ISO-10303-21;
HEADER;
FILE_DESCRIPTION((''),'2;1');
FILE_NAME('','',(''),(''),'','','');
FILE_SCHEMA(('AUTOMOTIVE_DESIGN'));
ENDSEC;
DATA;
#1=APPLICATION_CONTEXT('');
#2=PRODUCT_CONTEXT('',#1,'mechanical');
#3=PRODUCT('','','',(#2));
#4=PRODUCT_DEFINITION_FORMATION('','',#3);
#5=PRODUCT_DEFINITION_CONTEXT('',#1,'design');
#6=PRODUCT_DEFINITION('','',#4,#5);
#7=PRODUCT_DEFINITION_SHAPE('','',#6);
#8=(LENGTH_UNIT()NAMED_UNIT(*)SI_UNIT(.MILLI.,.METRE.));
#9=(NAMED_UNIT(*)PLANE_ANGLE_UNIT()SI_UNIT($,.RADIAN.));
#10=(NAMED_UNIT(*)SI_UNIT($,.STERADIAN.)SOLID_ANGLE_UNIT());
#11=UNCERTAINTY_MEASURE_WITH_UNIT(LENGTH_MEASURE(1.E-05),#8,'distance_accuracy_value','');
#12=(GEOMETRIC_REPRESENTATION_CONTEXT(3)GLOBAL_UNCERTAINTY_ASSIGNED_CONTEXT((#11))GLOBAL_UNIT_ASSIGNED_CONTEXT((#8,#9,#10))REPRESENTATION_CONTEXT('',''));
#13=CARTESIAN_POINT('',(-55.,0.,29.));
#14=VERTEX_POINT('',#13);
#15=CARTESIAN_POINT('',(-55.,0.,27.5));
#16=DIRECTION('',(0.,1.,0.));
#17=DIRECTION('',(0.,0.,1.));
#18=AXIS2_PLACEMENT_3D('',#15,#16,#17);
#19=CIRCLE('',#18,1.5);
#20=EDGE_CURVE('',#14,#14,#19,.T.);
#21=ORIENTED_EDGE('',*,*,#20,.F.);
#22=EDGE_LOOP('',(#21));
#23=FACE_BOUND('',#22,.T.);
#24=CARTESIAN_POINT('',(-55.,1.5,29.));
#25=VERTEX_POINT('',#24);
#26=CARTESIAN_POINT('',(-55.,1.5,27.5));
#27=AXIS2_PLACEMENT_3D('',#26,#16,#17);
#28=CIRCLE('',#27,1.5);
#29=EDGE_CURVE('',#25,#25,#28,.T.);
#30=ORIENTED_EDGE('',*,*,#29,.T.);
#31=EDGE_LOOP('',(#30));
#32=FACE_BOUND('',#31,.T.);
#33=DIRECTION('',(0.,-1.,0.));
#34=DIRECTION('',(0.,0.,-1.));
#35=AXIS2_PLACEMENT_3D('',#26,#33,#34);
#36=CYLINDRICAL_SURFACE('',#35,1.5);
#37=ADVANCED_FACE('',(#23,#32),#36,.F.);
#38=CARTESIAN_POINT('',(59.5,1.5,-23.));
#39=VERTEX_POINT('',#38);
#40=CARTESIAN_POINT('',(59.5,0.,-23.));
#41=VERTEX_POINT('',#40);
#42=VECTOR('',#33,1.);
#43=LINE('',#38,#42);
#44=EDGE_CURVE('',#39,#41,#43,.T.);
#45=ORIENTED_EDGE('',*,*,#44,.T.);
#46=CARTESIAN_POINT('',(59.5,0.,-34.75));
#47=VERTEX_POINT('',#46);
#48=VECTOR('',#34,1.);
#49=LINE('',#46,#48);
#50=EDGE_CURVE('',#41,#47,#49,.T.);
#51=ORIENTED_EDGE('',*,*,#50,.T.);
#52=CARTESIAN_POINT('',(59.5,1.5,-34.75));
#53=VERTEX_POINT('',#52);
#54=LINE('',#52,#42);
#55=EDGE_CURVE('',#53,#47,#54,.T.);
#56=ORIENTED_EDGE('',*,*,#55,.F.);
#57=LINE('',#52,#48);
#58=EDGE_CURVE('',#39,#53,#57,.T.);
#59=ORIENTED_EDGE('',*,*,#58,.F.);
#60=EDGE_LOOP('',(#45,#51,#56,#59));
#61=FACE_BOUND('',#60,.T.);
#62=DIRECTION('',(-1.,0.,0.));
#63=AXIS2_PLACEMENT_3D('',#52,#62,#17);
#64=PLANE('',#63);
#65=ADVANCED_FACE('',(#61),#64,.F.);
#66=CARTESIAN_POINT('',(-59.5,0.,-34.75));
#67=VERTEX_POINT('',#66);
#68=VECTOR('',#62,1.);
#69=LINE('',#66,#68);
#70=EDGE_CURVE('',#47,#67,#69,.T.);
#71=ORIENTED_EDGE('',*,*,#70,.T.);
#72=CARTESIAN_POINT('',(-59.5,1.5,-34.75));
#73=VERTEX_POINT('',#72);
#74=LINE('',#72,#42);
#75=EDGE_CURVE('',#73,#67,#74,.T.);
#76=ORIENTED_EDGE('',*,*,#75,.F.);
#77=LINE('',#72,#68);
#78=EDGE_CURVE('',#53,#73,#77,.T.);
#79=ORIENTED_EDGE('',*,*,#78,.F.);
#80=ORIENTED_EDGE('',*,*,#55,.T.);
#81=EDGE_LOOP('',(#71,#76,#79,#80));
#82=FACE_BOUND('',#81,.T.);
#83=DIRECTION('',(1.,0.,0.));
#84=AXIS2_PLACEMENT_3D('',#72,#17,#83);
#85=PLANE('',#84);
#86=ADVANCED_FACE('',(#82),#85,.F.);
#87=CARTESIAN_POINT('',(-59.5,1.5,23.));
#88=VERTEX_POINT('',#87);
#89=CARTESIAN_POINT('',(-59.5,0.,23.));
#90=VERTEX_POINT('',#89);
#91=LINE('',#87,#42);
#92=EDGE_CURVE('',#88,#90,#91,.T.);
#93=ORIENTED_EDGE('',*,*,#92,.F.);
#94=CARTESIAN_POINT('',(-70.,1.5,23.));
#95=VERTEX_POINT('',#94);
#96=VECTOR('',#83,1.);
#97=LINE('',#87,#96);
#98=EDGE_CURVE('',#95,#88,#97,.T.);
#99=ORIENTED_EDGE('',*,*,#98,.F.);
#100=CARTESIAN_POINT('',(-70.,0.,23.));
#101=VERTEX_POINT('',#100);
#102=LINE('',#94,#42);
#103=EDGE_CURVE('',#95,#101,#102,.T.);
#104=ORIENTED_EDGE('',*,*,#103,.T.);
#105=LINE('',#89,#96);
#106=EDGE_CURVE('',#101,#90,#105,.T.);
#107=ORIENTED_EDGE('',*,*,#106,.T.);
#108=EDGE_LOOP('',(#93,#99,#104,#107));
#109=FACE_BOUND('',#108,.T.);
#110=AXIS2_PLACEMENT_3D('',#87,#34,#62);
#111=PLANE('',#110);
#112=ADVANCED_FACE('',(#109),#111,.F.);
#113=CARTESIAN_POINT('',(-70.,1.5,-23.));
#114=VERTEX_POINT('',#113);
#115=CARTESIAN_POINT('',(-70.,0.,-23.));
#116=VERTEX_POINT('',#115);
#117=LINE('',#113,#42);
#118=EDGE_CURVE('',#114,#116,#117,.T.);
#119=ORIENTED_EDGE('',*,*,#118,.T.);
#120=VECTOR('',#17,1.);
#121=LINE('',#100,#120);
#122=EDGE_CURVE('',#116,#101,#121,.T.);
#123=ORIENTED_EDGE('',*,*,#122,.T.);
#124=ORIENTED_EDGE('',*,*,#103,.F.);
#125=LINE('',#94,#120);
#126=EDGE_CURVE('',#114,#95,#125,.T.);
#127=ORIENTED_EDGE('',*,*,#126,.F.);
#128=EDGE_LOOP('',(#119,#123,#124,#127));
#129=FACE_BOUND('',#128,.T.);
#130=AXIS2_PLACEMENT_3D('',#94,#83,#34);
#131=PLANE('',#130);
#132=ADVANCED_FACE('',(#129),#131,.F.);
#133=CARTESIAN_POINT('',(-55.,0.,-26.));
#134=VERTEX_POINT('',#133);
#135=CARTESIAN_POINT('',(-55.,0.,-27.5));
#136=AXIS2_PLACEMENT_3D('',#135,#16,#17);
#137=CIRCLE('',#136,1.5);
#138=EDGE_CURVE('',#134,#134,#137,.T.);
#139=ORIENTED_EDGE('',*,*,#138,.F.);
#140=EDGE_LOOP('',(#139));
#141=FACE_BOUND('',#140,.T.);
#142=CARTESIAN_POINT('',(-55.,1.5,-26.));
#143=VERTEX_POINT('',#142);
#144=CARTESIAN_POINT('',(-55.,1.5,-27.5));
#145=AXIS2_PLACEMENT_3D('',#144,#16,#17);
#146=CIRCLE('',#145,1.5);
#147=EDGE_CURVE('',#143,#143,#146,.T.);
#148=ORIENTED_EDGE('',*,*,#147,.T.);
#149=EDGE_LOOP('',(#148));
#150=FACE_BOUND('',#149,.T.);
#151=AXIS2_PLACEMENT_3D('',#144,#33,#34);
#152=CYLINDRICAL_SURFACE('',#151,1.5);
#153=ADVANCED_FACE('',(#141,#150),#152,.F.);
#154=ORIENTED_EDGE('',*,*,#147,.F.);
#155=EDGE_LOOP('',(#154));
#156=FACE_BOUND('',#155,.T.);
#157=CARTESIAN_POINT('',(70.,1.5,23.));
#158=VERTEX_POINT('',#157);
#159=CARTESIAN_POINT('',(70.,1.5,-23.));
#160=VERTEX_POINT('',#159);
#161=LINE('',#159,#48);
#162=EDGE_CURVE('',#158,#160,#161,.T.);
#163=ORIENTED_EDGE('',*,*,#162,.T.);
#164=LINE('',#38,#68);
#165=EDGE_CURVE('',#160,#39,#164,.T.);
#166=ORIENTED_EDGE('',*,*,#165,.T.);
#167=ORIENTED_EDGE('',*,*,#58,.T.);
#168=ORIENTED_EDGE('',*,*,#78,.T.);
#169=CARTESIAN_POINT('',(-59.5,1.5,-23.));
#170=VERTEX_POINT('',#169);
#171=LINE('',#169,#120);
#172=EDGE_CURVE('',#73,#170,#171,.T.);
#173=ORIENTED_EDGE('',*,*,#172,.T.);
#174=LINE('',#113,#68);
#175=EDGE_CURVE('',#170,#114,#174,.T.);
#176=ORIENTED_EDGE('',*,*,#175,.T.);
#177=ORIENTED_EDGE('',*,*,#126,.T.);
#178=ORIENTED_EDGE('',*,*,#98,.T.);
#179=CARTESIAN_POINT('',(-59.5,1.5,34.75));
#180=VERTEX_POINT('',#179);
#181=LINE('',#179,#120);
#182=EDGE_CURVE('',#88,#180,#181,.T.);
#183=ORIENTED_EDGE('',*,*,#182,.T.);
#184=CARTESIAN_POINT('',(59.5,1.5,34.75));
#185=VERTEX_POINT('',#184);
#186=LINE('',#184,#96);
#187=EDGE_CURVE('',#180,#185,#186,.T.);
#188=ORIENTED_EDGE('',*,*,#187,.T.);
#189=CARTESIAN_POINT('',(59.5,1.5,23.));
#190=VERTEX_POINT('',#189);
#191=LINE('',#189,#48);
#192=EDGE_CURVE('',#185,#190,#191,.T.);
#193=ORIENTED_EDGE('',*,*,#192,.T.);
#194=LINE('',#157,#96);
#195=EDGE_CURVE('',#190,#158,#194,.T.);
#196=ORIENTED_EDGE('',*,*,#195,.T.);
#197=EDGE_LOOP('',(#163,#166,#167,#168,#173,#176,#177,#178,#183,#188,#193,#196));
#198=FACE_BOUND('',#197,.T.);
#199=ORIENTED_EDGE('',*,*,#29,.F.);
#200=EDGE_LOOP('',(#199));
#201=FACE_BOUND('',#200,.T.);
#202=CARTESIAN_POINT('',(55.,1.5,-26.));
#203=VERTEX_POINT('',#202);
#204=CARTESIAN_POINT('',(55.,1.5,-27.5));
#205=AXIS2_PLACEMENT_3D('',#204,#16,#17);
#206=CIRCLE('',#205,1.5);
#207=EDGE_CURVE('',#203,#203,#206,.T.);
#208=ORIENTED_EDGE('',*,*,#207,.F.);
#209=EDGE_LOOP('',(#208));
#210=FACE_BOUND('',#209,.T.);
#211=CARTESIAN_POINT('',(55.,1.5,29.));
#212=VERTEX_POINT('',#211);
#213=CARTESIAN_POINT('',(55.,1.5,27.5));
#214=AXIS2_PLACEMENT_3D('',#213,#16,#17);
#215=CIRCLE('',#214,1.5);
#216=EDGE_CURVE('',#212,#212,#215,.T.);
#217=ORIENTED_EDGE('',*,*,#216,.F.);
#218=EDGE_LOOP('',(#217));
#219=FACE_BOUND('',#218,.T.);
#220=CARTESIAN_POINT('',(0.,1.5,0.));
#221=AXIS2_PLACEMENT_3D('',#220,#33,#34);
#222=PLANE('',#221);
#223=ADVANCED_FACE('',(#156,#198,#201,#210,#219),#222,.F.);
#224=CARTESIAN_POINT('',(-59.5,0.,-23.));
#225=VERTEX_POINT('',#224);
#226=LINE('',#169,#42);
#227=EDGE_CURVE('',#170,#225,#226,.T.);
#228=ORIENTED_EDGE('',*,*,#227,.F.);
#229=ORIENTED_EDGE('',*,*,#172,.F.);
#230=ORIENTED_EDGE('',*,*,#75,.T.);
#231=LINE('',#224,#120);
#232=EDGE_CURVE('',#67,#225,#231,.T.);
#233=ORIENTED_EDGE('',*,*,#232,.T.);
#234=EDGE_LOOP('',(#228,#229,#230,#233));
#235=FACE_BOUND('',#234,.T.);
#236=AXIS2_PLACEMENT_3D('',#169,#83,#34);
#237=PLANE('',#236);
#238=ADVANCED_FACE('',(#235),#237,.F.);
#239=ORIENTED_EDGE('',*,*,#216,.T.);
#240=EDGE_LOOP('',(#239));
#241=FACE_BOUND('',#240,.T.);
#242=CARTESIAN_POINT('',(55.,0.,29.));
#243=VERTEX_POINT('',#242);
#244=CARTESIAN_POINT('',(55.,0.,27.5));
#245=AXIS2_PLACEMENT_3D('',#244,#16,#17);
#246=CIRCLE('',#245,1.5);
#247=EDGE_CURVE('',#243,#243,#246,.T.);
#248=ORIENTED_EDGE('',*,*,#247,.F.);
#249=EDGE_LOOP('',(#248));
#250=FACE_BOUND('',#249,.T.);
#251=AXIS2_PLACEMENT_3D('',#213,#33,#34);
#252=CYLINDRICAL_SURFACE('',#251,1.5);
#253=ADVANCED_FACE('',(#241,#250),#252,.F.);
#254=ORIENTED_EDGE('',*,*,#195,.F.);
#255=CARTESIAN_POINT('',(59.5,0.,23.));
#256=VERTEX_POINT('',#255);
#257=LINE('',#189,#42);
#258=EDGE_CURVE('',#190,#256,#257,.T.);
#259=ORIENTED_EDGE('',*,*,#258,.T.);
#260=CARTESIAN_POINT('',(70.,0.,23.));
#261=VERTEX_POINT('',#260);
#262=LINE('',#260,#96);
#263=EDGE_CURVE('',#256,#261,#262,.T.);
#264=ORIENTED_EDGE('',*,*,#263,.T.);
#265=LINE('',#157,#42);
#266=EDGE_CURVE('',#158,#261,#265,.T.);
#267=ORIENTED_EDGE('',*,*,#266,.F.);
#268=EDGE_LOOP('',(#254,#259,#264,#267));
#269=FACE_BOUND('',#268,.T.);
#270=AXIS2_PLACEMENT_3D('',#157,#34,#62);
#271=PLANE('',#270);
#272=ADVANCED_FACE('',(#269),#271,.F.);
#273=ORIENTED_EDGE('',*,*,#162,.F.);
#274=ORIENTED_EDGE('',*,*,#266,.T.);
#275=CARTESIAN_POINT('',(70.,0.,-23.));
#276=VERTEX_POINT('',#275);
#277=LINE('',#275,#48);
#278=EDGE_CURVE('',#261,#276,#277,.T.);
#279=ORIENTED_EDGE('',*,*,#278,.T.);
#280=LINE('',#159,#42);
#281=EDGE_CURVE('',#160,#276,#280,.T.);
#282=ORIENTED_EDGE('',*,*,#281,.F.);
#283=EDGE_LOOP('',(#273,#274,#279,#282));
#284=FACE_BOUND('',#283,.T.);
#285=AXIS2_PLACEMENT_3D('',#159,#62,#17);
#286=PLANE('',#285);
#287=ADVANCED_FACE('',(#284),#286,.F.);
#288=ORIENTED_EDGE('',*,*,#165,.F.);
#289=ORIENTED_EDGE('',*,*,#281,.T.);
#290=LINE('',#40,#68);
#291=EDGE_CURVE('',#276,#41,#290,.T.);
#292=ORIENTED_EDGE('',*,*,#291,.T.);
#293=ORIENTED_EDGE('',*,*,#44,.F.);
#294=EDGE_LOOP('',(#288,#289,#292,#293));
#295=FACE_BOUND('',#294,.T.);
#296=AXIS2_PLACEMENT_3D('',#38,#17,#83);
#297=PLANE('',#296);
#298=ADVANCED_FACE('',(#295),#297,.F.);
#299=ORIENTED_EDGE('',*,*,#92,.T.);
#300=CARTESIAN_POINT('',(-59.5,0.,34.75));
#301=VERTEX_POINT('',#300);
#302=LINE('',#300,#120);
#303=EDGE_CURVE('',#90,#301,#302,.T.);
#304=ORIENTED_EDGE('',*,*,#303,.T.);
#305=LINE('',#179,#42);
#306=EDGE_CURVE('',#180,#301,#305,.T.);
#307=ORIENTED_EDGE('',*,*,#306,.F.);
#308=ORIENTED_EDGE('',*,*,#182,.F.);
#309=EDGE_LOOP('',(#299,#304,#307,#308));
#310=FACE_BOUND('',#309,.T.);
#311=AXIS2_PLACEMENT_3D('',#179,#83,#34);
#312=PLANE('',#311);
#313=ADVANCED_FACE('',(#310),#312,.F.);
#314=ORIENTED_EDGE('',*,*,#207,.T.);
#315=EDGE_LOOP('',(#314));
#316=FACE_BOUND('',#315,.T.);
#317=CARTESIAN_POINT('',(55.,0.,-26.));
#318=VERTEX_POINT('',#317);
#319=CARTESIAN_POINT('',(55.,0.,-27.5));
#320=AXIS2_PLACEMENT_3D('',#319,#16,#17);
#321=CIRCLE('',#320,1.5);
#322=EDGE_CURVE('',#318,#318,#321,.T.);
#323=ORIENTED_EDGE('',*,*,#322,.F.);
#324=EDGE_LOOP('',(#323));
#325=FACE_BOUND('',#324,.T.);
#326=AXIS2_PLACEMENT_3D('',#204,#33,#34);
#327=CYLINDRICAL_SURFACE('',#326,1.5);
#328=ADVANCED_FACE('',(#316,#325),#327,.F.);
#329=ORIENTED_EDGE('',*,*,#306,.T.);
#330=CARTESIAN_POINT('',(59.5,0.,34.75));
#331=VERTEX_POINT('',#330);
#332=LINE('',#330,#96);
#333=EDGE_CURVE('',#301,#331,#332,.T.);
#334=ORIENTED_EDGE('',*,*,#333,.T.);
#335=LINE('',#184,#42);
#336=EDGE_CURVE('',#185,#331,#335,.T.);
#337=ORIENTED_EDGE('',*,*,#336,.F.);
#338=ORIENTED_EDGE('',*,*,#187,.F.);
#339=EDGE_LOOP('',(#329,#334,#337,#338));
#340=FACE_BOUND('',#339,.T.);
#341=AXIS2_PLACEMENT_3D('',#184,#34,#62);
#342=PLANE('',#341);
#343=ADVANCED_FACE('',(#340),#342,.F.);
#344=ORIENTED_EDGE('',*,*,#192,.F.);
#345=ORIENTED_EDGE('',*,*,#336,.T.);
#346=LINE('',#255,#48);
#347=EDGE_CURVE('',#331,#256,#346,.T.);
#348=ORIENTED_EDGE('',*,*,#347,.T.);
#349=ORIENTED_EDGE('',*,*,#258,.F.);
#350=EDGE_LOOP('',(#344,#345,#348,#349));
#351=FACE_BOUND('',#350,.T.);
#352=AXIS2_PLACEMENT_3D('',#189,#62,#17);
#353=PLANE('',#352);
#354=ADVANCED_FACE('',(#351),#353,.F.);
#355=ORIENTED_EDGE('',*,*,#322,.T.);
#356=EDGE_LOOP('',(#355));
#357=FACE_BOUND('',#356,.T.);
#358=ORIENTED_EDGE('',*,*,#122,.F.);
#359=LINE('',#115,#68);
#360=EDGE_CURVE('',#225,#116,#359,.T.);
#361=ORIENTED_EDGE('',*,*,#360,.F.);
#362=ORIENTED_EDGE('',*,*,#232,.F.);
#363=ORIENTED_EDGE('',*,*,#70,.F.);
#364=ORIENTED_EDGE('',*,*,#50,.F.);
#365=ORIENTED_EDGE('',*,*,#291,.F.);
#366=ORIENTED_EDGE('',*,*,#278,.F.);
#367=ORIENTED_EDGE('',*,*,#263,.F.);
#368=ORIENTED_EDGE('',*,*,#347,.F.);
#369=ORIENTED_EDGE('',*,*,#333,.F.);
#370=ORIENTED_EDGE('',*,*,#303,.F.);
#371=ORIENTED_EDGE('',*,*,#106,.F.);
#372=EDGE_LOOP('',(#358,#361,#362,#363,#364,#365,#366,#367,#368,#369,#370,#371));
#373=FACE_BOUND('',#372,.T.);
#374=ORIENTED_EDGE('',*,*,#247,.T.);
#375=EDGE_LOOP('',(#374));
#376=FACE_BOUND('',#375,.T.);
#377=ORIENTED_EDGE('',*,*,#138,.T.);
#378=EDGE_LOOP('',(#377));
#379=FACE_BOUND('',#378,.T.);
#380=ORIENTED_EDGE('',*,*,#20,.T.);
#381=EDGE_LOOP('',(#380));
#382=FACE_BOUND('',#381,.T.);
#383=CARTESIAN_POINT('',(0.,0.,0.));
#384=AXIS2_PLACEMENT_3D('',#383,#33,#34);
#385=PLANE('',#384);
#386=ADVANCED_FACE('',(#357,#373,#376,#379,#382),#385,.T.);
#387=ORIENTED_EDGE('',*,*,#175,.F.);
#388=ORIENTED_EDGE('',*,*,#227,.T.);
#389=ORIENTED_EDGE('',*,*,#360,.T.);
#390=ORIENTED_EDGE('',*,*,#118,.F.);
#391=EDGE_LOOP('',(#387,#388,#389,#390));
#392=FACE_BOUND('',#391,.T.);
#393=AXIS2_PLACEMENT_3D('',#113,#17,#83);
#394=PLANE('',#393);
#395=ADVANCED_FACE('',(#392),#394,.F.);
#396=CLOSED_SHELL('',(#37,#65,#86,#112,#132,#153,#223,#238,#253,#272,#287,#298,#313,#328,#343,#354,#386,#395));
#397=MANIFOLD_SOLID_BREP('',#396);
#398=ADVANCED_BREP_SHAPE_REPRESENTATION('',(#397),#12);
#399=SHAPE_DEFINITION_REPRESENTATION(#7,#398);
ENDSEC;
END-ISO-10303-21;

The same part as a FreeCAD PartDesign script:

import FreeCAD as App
import Part
import Sketcher

V = App.Vector

doc = App.newDocument("Part")
body = doc.addObject("PartDesign::Body", "Body")

sketch1 = body.newObject("Sketcher::SketchObject", "Sketch")
sketch1.AttachmentSupport = (doc.getObject("XZ_Plane"), [""])
sketch1.MapMode = "FlatFace"
sketch1.addGeometry(Part.LineSegment(V(59.5, -34.75, 0), V(-59.5, -34.75, 0)), False)
sketch1.addGeometry(Part.LineSegment(V(-59.5, -34.75, 0), V(-59.5, -23, 0)), False)
sketch1.addGeometry(Part.LineSegment(V(-59.5, -23, 0), V(-70, -23, 0)), False)
sketch1.addGeometry(Part.LineSegment(V(-70, -23, 0), V(-70, 23, 0)), False)
sketch1.addGeometry(Part.LineSegment(V(-70, 23, 0), V(-59.5, 23, 0)), False)
sketch1.addGeometry(Part.LineSegment(V(-59.5, 23, 0), V(-59.5, 34.75, 0)), False)
sketch1.addGeometry(Part.LineSegment(V(-59.5, 34.75, 0), V(59.5, 34.75, 0)), False)
sketch1.addGeometry(Part.LineSegment(V(59.5, 34.75, 0), V(59.5, 23, 0)), False)
sketch1.addGeometry(Part.LineSegment(V(59.5, 23, 0), V(70, 23, 0)), False)
sketch1.addGeometry(Part.LineSegment(V(70, 23, 0), V(70, -23, 0)), False)
sketch1.addGeometry(Part.LineSegment(V(70, -23, 0), V(59.5, -23, 0)), False)
sketch1.addGeometry(Part.LineSegment(V(59.5, -23, 0), V(59.5, -34.75, 0)), False)
sketch1.addConstraint(Sketcher.Constraint("Coincident", 0, 2, 1, 1))
sketch1.addConstraint(Sketcher.Constraint("Coincident", 1, 2, 2, 1))
sketch1.addConstraint(Sketcher.Constraint("Coincident", 2, 2, 3, 1))
sketch1.addConstraint(Sketcher.Constraint("Coincident", 3, 2, 4, 1))
sketch1.addConstraint(Sketcher.Constraint("Coincident", 4, 2, 5, 1))
sketch1.addConstraint(Sketcher.Constraint("Coincident", 5, 2, 6, 1))
sketch1.addConstraint(Sketcher.Constraint("Coincident", 6, 2, 7, 1))
sketch1.addConstraint(Sketcher.Constraint("Coincident", 7, 2, 8, 1))
sketch1.addConstraint(Sketcher.Constraint("Coincident", 8, 2, 9, 1))
sketch1.addConstraint(Sketcher.Constraint("Coincident", 9, 2, 10, 1))
sketch1.addConstraint(Sketcher.Constraint("Coincident", 10, 2, 11, 1))
sketch1.addConstraint(Sketcher.Constraint("Coincident", 11, 2, 0, 1))
sketch1.addConstraint(Sketcher.Constraint("Horizontal", 0))
sketch1.addConstraint(Sketcher.Constraint("Vertical", 1))
sketch1.addConstraint(Sketcher.Constraint("Horizontal", 2))
sketch1.addConstraint(Sketcher.Constraint("Vertical", 3))
sketch1.addConstraint(Sketcher.Constraint("Horizontal", 4))
sketch1.addConstraint(Sketcher.Constraint("Vertical", 5))
sketch1.addConstraint(Sketcher.Constraint("Horizontal", 6))
sketch1.addConstraint(Sketcher.Constraint("Vertical", 7))
sketch1.addConstraint(Sketcher.Constraint("Horizontal", 8))
sketch1.addConstraint(Sketcher.Constraint("Vertical", 9))
sketch1.addConstraint(Sketcher.Constraint("Horizontal", 10))
sketch1.addConstraint(Sketcher.Constraint("Vertical", 11))
sketch1.addConstraint(Sketcher.Constraint("Symmetric", 0, 2, 6, 2, -1, 1))
sketch1.addConstraint(Sketcher.Constraint("Symmetric", 2, 2, 8, 2, -1, 1))
sketch1.addConstraint(Sketcher.Constraint("Symmetric", 4, 2, 10, 2, -1, 1))
sketch1.addConstraint(Sketcher.Constraint("Symmetric", 4, 2, 7, 2, -2))
sketch1.addConstraint(Sketcher.Constraint("DistanceX", 0, 2, 0, 1, 119.0))
sketch1.addConstraint(Sketcher.Constraint("DistanceY", 3, 1, 3, 2, 46.0))
sketch1.addConstraint(Sketcher.Constraint("DistanceX", 2, 2, 2, 1, 10.5))
sketch1.addConstraint(Sketcher.Constraint("DistanceY", 1, 1, 1, 2, 11.75))
pad1 = body.newObject("PartDesign::Pad", "Pad")
pad1.Profile = sketch1
pad1.Length = 1.5
pad1.Reversed = True

sketch2 = body.newObject("Sketcher::SketchObject", "Sketch001")
sketch2.AttachmentSupport = (doc.getObject("XZ_Plane"), [""])
sketch2.MapMode = "FlatFace"
sketch2.addGeometry(Part.Circle(V(-55, -27.5, 0), V(0, 0, 1), 1.5), False)
sketch2.addGeometry(Part.Circle(V(-55, 27.5, 0), V(0, 0, 1), 1.5), False)
sketch2.addGeometry(Part.Circle(V(55, 27.5, 0), V(0, 0, 1), 1.5), False)
sketch2.addGeometry(Part.Circle(V(55, -27.5, 0), V(0, 0, 1), 1.5), False)
sketch2.addConstraint(Sketcher.Constraint("Equal", 0, 1))
sketch2.addConstraint(Sketcher.Constraint("Equal", 1, 2))
sketch2.addConstraint(Sketcher.Constraint("Equal", 2, 3))
sketch2.addConstraint(Sketcher.Constraint("Symmetric", 0, 3, 2, 3, -1, 1))
sketch2.addConstraint(Sketcher.Constraint("Symmetric", 1, 3, 3, 3, -1, 1))
sketch2.addConstraint(Sketcher.Constraint("Symmetric", 1, 3, 2, 3, -2))
sketch2.addConstraint(Sketcher.Constraint("Diameter", 0, 3.0))
sketch2.addConstraint(Sketcher.Constraint("DistanceX", 0, 3, -1, 1, 55.0))
sketch2.addConstraint(Sketcher.Constraint("DistanceY", 0, 3, 1, 3, 55.0))
pocket1 = body.newObject("PartDesign::Pocket", "Pocket")
pocket1.Profile = sketch2
pocket1.Length = 1.5

doc.recompute()
